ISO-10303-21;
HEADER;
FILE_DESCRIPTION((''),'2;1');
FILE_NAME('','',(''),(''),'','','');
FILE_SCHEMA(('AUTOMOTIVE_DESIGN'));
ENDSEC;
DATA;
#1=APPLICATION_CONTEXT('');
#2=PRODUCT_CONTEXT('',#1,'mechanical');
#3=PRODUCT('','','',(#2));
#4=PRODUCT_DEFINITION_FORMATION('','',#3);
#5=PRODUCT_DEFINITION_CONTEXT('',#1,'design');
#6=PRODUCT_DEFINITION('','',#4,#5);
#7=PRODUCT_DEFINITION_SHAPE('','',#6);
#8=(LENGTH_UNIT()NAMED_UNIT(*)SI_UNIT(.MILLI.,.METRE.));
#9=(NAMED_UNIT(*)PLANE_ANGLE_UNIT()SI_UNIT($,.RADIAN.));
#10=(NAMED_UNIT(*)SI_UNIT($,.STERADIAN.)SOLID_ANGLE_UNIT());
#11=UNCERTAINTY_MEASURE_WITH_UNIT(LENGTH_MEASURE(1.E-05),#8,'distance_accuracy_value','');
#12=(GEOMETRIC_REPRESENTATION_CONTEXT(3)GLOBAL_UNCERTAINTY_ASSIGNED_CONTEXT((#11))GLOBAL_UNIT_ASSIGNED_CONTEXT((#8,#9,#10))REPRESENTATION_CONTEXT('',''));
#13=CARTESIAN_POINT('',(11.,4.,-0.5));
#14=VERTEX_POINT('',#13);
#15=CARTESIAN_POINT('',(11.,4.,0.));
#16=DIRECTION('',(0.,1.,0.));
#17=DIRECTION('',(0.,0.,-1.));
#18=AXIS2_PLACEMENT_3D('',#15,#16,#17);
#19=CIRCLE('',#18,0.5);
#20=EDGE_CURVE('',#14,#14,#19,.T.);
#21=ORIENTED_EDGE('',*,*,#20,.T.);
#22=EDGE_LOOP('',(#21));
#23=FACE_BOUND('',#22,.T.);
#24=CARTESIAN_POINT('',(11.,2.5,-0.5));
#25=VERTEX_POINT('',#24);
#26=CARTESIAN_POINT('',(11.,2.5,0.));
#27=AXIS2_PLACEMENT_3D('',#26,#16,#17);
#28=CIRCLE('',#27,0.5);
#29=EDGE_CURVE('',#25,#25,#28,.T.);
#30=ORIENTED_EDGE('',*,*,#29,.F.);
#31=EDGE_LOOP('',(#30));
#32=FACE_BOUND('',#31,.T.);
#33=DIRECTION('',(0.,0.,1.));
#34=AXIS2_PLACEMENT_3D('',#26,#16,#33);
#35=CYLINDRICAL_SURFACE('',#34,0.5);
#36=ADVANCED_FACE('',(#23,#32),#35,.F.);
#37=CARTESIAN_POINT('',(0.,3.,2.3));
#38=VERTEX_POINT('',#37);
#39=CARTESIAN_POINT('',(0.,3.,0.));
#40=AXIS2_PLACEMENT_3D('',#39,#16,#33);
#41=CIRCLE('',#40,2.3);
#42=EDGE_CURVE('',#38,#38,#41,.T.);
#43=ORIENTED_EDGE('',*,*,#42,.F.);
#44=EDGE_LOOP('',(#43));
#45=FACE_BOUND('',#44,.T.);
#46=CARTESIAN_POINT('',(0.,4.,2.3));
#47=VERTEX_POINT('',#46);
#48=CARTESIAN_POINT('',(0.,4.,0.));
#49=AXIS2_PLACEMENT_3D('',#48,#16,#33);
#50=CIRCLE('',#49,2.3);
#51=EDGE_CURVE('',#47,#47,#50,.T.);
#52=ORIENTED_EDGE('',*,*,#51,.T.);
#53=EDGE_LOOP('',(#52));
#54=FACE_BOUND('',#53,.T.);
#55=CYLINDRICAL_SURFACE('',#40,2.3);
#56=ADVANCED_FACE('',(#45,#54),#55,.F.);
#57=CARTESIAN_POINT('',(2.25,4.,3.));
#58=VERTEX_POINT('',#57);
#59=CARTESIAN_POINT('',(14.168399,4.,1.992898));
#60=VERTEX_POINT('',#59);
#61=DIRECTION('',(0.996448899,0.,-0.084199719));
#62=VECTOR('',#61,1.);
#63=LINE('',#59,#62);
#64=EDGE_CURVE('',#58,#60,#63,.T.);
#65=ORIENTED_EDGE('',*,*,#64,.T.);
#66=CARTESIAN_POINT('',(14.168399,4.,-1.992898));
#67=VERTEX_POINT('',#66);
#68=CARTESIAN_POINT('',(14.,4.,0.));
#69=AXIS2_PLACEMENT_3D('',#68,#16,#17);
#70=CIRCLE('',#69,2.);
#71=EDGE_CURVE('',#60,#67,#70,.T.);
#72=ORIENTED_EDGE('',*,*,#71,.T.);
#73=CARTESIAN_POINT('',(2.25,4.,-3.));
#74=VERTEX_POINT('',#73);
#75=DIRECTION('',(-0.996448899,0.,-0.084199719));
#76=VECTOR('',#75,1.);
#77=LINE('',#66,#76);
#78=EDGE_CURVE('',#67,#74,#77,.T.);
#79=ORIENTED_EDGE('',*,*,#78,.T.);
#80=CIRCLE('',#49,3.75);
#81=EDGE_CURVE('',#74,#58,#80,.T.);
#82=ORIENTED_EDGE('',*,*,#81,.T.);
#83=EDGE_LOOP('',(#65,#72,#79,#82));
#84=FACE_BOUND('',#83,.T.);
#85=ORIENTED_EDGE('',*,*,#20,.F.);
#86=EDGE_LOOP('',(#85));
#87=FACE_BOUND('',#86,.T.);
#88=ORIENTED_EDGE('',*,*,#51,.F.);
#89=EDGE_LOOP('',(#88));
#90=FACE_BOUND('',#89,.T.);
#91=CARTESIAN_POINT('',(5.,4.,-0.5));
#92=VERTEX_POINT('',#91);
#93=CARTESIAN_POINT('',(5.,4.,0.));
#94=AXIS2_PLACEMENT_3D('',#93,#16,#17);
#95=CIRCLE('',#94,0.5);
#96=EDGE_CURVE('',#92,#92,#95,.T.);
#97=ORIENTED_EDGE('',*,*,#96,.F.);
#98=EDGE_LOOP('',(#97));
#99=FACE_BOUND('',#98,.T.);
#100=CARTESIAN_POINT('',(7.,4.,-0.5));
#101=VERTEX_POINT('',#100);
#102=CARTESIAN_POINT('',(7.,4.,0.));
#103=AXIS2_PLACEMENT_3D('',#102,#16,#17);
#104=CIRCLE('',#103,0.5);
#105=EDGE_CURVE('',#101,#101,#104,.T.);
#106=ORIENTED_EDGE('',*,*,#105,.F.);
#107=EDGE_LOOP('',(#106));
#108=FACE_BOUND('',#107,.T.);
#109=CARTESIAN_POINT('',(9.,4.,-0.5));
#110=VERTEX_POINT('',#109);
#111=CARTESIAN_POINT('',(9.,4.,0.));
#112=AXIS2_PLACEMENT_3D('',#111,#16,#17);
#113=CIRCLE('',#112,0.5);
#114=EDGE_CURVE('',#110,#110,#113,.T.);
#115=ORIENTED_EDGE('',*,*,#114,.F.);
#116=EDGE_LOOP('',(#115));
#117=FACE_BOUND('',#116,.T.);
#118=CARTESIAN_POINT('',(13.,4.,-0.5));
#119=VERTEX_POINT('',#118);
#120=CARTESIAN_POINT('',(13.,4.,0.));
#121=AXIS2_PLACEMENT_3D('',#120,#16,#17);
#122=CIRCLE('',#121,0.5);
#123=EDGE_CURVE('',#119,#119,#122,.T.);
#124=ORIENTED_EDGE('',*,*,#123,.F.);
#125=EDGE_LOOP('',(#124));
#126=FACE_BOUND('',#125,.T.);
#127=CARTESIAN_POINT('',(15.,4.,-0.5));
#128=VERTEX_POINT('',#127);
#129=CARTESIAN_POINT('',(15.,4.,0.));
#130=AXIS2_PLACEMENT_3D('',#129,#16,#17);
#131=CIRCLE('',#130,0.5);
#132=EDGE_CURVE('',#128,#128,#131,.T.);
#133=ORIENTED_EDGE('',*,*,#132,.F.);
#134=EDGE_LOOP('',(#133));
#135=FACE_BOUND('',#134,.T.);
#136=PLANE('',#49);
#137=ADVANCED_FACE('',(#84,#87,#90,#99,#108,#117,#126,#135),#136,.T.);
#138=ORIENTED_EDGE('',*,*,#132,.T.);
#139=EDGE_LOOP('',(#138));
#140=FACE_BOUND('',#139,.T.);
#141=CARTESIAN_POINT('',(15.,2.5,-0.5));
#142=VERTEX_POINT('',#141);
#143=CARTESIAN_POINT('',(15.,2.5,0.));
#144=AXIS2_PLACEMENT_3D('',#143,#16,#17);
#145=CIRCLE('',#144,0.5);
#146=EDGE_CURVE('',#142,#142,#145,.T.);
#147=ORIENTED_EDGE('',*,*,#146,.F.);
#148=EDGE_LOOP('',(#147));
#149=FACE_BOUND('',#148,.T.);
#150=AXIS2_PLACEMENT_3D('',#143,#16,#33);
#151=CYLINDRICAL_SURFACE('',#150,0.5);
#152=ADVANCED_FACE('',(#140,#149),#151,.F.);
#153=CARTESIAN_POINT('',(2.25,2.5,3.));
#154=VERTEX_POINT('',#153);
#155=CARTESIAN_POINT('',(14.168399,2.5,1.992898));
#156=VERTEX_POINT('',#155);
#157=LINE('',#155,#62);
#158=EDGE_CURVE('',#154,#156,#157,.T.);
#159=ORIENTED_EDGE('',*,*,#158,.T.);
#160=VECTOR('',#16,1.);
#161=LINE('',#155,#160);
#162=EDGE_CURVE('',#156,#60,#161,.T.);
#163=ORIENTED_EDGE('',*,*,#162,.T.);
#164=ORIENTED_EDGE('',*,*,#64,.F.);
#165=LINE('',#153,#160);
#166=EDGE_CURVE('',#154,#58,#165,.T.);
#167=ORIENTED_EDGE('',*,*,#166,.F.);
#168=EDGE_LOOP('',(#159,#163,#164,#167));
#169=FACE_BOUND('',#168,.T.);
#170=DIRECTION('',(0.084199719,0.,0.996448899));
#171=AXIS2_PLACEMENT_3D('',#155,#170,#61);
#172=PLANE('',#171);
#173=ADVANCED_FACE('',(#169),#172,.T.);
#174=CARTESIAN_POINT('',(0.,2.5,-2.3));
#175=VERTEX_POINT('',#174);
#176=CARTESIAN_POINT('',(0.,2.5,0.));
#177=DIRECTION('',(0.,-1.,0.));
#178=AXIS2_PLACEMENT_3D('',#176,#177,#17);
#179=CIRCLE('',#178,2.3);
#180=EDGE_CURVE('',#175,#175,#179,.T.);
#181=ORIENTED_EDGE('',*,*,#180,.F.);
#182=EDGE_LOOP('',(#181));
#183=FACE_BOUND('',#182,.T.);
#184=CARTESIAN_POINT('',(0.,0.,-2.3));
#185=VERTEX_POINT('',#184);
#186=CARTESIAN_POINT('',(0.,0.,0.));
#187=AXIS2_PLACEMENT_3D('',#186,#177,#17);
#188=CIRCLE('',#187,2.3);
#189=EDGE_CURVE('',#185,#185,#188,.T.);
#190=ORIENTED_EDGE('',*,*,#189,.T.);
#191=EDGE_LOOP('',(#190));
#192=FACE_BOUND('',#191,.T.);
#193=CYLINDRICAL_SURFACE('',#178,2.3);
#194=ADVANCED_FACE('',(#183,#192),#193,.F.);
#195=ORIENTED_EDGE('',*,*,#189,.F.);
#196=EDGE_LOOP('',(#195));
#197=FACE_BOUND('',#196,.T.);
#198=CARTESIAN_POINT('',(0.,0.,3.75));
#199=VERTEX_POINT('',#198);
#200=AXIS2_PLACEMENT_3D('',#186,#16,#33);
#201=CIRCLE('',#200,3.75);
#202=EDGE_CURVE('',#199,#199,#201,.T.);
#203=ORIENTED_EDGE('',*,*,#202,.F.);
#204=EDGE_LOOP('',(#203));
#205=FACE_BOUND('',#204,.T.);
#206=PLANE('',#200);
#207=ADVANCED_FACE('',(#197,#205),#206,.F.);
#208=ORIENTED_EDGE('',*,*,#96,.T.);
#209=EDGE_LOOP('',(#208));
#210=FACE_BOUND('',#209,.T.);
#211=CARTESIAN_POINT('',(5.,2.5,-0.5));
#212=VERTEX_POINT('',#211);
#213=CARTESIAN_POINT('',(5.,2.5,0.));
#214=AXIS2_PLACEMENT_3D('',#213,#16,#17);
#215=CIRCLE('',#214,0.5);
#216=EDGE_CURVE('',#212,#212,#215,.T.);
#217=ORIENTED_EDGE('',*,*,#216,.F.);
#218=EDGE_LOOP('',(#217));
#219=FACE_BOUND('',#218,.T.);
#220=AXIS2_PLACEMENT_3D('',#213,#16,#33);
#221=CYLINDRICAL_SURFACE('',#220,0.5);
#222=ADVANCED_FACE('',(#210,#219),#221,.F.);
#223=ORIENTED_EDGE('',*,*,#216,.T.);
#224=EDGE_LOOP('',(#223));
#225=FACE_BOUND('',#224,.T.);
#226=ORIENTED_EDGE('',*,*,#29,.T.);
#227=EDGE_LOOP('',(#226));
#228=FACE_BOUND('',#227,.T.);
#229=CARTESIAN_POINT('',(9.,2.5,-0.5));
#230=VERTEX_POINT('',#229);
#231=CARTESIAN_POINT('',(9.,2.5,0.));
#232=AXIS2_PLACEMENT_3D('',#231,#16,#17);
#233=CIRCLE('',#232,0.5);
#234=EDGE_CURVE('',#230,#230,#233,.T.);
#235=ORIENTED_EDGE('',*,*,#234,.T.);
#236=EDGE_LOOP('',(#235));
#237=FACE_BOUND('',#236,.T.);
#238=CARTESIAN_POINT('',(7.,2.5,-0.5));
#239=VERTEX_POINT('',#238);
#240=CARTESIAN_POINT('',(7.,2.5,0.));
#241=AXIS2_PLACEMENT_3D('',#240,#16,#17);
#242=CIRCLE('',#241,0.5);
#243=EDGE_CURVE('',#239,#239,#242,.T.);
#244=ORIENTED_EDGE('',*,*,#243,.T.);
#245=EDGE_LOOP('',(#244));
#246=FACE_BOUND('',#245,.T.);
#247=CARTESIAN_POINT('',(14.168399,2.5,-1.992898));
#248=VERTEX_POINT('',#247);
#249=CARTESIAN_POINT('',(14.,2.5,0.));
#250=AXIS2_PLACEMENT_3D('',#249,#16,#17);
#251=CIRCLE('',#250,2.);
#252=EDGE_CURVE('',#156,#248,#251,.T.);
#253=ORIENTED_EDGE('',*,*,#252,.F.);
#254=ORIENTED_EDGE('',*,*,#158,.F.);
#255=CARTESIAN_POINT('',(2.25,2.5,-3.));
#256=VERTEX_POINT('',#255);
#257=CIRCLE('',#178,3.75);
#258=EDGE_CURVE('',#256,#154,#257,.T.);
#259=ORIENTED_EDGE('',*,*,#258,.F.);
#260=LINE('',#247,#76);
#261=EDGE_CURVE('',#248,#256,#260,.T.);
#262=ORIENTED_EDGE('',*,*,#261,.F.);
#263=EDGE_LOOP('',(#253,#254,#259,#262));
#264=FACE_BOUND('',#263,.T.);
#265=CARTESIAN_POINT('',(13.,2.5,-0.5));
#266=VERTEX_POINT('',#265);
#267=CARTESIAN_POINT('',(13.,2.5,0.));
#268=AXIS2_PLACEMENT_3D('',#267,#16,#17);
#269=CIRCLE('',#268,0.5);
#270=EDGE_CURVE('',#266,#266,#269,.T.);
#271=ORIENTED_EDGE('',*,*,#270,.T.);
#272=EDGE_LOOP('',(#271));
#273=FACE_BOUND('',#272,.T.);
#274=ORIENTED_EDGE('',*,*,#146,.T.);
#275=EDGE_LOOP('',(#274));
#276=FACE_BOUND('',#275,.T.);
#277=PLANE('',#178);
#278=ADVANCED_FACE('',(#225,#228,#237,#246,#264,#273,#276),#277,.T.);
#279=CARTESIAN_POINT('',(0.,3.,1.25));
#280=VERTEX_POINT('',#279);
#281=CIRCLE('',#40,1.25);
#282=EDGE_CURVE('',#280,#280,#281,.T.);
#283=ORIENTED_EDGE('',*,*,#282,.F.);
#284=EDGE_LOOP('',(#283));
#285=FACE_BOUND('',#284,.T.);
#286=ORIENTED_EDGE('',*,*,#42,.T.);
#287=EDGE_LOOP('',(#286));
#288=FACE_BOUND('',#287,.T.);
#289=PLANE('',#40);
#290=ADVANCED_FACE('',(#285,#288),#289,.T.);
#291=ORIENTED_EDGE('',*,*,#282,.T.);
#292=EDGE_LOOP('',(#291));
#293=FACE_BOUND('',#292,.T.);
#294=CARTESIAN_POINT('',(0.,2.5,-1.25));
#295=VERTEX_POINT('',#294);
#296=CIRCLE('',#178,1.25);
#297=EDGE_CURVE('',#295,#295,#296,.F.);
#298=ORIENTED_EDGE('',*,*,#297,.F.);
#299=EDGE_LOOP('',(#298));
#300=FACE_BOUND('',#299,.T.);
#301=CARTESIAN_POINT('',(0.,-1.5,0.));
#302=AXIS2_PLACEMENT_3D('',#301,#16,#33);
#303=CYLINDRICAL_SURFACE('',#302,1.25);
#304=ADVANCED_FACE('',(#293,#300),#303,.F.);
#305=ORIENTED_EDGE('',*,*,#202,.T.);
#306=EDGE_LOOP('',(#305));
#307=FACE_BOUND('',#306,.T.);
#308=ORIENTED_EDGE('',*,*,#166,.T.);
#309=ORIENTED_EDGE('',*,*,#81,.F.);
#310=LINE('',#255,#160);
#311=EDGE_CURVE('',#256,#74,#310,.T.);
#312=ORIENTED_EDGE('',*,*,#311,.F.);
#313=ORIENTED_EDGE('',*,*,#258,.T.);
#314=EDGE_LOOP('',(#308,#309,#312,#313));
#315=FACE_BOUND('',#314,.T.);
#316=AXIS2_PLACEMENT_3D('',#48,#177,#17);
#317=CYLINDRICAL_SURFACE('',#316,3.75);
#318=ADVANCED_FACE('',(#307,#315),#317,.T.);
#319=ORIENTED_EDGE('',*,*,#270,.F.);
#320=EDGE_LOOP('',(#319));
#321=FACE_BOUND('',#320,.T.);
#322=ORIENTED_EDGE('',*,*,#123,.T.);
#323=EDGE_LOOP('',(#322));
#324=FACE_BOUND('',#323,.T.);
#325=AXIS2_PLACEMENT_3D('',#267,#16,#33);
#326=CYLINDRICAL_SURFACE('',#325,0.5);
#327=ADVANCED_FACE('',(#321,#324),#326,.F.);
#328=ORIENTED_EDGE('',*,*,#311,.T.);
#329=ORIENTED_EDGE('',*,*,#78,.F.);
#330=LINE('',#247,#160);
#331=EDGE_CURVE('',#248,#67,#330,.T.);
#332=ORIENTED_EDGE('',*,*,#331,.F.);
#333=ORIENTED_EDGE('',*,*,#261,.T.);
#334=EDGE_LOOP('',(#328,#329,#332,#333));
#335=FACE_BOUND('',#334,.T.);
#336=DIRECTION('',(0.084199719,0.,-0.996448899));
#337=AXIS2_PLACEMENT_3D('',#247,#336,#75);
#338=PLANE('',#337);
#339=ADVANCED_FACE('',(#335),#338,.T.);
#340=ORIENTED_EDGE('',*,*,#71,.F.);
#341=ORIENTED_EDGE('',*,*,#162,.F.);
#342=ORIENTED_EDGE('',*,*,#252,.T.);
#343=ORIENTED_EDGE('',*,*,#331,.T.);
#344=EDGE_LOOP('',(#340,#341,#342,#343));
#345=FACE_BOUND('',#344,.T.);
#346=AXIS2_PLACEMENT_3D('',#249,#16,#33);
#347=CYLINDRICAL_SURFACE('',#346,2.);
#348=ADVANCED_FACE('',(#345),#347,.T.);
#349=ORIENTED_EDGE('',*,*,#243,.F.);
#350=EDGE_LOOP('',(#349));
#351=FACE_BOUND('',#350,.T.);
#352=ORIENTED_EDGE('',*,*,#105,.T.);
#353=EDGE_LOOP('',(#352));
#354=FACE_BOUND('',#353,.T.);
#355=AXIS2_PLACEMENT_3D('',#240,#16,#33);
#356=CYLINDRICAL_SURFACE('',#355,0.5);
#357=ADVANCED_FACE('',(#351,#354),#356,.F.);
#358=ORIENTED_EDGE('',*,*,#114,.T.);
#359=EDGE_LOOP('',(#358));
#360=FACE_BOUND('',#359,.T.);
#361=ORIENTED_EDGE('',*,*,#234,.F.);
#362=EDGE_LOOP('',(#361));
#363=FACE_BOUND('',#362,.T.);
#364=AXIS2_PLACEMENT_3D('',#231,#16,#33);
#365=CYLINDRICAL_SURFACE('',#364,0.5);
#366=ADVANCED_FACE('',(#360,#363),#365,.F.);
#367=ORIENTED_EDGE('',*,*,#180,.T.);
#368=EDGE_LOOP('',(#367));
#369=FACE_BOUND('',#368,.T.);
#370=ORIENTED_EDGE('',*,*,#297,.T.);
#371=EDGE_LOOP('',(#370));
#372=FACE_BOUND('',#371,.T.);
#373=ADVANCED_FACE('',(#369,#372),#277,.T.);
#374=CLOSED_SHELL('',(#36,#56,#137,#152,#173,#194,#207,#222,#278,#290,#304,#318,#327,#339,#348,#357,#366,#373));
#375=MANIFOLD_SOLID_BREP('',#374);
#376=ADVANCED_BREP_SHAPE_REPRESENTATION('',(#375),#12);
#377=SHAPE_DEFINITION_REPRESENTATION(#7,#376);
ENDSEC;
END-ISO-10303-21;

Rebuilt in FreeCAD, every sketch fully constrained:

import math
import FreeCAD as App
import Part
import Sketcher
from FreeCAD import Vector

doc = App.newDocument("Part")
body = doc.addObject("PartDesign::Body", "Body")

# Sketch on XZ plane
sketch1 = doc.addObject("Sketcher::SketchObject", "Sketch")
body.addObject(sketch1)
sketch1.AttachmentSupport = (doc.XZ_Plane, [""])
sketch1.MapMode = "FlatFace"
sketch1.addGeometry(Part.Circle(Vector(0, 0, 0), Vector(0, 0, 1), 3.8), False)
sketch1.addConstraint([
    Sketcher.Constraint("Coincident", 0, 3, -1, 1),
    Sketcher.Constraint("Diameter", 0, 7.5),
])
pad1 = doc.addObject("PartDesign::Pad", "Pad")
body.addObject(pad1)
pad1.Profile = sketch1
pad1.Length = 4
pad1.Reversed = True

# Sketch on XZ plane
sketch2 = doc.addObject("Sketcher::SketchObject", "Sketch001")
body.addObject(sketch2)
sketch2.AttachmentSupport = (doc.XZ_Plane, [""])
sketch2.MapMode = "FlatFace"
sketch2.AttachmentOffset = App.Placement(Vector(0, 0, -4), App.Rotation())
sketch2.addGeometry(Part.Circle(Vector(0, 0, 0), Vector(0, 0, 1), 2.3), False)
sketch2.addConstraint([
    Sketcher.Constraint("Coincident", 0, 3, -1, 1),
    Sketcher.Constraint("Diameter", 0, 4.6),
])
pocket1 = doc.addObject("PartDesign::Pocket", "Pocket")
body.addObject(pocket1)
pocket1.Profile = sketch2
pocket1.Length = 1
pocket1.Reversed = True

# Sketch on XZ plane
sketch3 = doc.addObject("Sketcher::SketchObject", "Sketch002")
body.addObject(sketch3)
sketch3.AttachmentSupport = (doc.XZ_Plane, [""])
sketch3.MapMode = "FlatFace"
sketch3.AttachmentOffset = App.Placement(Vector(0, 0, -4), App.Rotation())
sketch3.addGeometry([
    Part.LineSegment(Vector(2.2, 3, 0), Vector(14.2, 2, 0)),  # 0
    Part.ArcOfCircle(Part.Circle(Vector(14, 0, 0), Vector(0, 0, 1), 2), math.radians(-85), math.radians(85)),  # 1
    Part.LineSegment(Vector(14.2, -2, 0), Vector(2.2, -3, 0)),  # 2
    Part.ArcOfCircle(Part.Circle(Vector(0, 0, 0), Vector(0, 0, 1), 3.8), math.radians(-53), math.radians(53)),  # 3
    Part.Circle(Vector(15, 0, 0), Vector(0, 0, 1), 0.5),  # 4
    Part.Circle(Vector(13, 0, 0), Vector(0, 0, 1), 0.5),  # 5
    Part.Circle(Vector(11, 0, 0), Vector(0, 0, 1), 0.5),  # 6
    Part.Circle(Vector(9, 0, 0), Vector(0, 0, 1), 0.5),  # 7
    Part.Circle(Vector(7, 0, 0), Vector(0, 0, 1), 0.5),  # 8
    Part.Circle(Vector(5, 0, 0), Vector(0, 0, 1), 0.5),  # 9
], False)
sketch3.addConstraint([
    Sketcher.Constraint("Tangent", 0, 2, 1, 2),
    Sketcher.Constraint("Tangent", 1, 1, 2, 1),
    Sketcher.Constraint("Coincident", 2, 2, 3, 1),
    Sketcher.Constraint("Coincident", 3, 2, 0, 1),
    Sketcher.Constraint("Coincident", 3, 3, -1, 1),
    Sketcher.Constraint("Equal", 4, 5),
    Sketcher.Constraint("Equal", 5, 6),
    Sketcher.Constraint("Equal", 6, 7),
    Sketcher.Constraint("Equal", 7, 8),
    Sketcher.Constraint("Equal", 8, 9),
    Sketcher.Constraint("Symmetric", 0, 2, 1, 1, -1),
    Sketcher.Constraint("PointOnObject", 4, 3, -1),
    Sketcher.Constraint("PointOnObject", 5, 3, -1),
    Sketcher.Constraint("PointOnObject", 6, 3, -1),
    Sketcher.Constraint("PointOnObject", 7, 3, -1),
    Sketcher.Constraint("PointOnObject", 8, 3, -1),
    Sketcher.Constraint("PointOnObject", 9, 3, -1),
    Sketcher.Constraint("Diameter", 4, 1.0),
    Sketcher.Constraint("Radius", 1, 2.0),
    Sketcher.Constraint("Radius", 3, 3.75),
    Sketcher.Constraint("DistanceX", -1, 1, 1, 3, 14.0),
    Sketcher.Constraint("DistanceX", -1, 1, 4, 3, 15.0),
    Sketcher.Constraint("DistanceX", -1, 1, 5, 3, 13.0),
    Sketcher.Constraint("DistanceX", -1, 1, 6, 3, 11.0),
    Sketcher.Constraint("DistanceX", -1, 1, 7, 3, 9.0),
    Sketcher.Constraint("DistanceX", -1, 1, 8, 3, 7.0),
    Sketcher.Constraint("DistanceX", -1, 1, 9, 3, 5.0),
    Sketcher.Constraint("DistanceY", 2, 2, -1, 1, 3.0),
])
pad2 = doc.addObject("PartDesign::Pad", "Pad001")
body.addObject(pad2)
pad2.Profile = sketch3
pad2.Length = 1.5

# Sketch on XZ plane
sketch4 = doc.addObject("Sketcher::SketchObject", "Sketch003")
body.addObject(sketch4)
sketch4.AttachmentSupport = (doc.XZ_Plane, [""])
sketch4.MapMode = "FlatFace"
sketch4.AttachmentOffset = App.Placement(Vector(0, 0, -3), App.Rotation())
sketch4.addGeometry(Part.Circle(Vector(0, 0, 0), Vector(0, 0, 1), 1.2), False)
sketch4.addConstraint([
    Sketcher.Constraint("Coincident", 0, 3, -1, 1),
    Sketcher.Constraint("Diameter", 0, 2.5),
])
pocket2 = doc.addObject("PartDesign::Pocket", "Pocket001")
body.addObject(pocket2)
pocket2.Profile = sketch4
pocket2.Length = 4.5
pocket2.Reversed = True

# Sketch on XZ plane
sketch5 = doc.addObject("Sketcher::SketchObject", "Sketch004")
body.addObject(sketch5)
sketch5.AttachmentSupport = (doc.XZ_Plane, [""])
sketch5.MapMode = "FlatFace"
sketch5.addGeometry(Part.Circle(Vector(0, 0, 0), Vector(0, 0, 1), 2.3), False)
sketch5.addConstraint([
    Sketcher.Constraint("Coincident", 0, 3, -1, 1),
    Sketcher.Constraint("Diameter", 0, 4.6),
])
pocket3 = doc.addObject("PartDesign::Pocket", "Pocket002")
body.addObject(pocket3)
pocket3.Profile = sketch5
pocket3.Length = 2.5

doc.recompute()
